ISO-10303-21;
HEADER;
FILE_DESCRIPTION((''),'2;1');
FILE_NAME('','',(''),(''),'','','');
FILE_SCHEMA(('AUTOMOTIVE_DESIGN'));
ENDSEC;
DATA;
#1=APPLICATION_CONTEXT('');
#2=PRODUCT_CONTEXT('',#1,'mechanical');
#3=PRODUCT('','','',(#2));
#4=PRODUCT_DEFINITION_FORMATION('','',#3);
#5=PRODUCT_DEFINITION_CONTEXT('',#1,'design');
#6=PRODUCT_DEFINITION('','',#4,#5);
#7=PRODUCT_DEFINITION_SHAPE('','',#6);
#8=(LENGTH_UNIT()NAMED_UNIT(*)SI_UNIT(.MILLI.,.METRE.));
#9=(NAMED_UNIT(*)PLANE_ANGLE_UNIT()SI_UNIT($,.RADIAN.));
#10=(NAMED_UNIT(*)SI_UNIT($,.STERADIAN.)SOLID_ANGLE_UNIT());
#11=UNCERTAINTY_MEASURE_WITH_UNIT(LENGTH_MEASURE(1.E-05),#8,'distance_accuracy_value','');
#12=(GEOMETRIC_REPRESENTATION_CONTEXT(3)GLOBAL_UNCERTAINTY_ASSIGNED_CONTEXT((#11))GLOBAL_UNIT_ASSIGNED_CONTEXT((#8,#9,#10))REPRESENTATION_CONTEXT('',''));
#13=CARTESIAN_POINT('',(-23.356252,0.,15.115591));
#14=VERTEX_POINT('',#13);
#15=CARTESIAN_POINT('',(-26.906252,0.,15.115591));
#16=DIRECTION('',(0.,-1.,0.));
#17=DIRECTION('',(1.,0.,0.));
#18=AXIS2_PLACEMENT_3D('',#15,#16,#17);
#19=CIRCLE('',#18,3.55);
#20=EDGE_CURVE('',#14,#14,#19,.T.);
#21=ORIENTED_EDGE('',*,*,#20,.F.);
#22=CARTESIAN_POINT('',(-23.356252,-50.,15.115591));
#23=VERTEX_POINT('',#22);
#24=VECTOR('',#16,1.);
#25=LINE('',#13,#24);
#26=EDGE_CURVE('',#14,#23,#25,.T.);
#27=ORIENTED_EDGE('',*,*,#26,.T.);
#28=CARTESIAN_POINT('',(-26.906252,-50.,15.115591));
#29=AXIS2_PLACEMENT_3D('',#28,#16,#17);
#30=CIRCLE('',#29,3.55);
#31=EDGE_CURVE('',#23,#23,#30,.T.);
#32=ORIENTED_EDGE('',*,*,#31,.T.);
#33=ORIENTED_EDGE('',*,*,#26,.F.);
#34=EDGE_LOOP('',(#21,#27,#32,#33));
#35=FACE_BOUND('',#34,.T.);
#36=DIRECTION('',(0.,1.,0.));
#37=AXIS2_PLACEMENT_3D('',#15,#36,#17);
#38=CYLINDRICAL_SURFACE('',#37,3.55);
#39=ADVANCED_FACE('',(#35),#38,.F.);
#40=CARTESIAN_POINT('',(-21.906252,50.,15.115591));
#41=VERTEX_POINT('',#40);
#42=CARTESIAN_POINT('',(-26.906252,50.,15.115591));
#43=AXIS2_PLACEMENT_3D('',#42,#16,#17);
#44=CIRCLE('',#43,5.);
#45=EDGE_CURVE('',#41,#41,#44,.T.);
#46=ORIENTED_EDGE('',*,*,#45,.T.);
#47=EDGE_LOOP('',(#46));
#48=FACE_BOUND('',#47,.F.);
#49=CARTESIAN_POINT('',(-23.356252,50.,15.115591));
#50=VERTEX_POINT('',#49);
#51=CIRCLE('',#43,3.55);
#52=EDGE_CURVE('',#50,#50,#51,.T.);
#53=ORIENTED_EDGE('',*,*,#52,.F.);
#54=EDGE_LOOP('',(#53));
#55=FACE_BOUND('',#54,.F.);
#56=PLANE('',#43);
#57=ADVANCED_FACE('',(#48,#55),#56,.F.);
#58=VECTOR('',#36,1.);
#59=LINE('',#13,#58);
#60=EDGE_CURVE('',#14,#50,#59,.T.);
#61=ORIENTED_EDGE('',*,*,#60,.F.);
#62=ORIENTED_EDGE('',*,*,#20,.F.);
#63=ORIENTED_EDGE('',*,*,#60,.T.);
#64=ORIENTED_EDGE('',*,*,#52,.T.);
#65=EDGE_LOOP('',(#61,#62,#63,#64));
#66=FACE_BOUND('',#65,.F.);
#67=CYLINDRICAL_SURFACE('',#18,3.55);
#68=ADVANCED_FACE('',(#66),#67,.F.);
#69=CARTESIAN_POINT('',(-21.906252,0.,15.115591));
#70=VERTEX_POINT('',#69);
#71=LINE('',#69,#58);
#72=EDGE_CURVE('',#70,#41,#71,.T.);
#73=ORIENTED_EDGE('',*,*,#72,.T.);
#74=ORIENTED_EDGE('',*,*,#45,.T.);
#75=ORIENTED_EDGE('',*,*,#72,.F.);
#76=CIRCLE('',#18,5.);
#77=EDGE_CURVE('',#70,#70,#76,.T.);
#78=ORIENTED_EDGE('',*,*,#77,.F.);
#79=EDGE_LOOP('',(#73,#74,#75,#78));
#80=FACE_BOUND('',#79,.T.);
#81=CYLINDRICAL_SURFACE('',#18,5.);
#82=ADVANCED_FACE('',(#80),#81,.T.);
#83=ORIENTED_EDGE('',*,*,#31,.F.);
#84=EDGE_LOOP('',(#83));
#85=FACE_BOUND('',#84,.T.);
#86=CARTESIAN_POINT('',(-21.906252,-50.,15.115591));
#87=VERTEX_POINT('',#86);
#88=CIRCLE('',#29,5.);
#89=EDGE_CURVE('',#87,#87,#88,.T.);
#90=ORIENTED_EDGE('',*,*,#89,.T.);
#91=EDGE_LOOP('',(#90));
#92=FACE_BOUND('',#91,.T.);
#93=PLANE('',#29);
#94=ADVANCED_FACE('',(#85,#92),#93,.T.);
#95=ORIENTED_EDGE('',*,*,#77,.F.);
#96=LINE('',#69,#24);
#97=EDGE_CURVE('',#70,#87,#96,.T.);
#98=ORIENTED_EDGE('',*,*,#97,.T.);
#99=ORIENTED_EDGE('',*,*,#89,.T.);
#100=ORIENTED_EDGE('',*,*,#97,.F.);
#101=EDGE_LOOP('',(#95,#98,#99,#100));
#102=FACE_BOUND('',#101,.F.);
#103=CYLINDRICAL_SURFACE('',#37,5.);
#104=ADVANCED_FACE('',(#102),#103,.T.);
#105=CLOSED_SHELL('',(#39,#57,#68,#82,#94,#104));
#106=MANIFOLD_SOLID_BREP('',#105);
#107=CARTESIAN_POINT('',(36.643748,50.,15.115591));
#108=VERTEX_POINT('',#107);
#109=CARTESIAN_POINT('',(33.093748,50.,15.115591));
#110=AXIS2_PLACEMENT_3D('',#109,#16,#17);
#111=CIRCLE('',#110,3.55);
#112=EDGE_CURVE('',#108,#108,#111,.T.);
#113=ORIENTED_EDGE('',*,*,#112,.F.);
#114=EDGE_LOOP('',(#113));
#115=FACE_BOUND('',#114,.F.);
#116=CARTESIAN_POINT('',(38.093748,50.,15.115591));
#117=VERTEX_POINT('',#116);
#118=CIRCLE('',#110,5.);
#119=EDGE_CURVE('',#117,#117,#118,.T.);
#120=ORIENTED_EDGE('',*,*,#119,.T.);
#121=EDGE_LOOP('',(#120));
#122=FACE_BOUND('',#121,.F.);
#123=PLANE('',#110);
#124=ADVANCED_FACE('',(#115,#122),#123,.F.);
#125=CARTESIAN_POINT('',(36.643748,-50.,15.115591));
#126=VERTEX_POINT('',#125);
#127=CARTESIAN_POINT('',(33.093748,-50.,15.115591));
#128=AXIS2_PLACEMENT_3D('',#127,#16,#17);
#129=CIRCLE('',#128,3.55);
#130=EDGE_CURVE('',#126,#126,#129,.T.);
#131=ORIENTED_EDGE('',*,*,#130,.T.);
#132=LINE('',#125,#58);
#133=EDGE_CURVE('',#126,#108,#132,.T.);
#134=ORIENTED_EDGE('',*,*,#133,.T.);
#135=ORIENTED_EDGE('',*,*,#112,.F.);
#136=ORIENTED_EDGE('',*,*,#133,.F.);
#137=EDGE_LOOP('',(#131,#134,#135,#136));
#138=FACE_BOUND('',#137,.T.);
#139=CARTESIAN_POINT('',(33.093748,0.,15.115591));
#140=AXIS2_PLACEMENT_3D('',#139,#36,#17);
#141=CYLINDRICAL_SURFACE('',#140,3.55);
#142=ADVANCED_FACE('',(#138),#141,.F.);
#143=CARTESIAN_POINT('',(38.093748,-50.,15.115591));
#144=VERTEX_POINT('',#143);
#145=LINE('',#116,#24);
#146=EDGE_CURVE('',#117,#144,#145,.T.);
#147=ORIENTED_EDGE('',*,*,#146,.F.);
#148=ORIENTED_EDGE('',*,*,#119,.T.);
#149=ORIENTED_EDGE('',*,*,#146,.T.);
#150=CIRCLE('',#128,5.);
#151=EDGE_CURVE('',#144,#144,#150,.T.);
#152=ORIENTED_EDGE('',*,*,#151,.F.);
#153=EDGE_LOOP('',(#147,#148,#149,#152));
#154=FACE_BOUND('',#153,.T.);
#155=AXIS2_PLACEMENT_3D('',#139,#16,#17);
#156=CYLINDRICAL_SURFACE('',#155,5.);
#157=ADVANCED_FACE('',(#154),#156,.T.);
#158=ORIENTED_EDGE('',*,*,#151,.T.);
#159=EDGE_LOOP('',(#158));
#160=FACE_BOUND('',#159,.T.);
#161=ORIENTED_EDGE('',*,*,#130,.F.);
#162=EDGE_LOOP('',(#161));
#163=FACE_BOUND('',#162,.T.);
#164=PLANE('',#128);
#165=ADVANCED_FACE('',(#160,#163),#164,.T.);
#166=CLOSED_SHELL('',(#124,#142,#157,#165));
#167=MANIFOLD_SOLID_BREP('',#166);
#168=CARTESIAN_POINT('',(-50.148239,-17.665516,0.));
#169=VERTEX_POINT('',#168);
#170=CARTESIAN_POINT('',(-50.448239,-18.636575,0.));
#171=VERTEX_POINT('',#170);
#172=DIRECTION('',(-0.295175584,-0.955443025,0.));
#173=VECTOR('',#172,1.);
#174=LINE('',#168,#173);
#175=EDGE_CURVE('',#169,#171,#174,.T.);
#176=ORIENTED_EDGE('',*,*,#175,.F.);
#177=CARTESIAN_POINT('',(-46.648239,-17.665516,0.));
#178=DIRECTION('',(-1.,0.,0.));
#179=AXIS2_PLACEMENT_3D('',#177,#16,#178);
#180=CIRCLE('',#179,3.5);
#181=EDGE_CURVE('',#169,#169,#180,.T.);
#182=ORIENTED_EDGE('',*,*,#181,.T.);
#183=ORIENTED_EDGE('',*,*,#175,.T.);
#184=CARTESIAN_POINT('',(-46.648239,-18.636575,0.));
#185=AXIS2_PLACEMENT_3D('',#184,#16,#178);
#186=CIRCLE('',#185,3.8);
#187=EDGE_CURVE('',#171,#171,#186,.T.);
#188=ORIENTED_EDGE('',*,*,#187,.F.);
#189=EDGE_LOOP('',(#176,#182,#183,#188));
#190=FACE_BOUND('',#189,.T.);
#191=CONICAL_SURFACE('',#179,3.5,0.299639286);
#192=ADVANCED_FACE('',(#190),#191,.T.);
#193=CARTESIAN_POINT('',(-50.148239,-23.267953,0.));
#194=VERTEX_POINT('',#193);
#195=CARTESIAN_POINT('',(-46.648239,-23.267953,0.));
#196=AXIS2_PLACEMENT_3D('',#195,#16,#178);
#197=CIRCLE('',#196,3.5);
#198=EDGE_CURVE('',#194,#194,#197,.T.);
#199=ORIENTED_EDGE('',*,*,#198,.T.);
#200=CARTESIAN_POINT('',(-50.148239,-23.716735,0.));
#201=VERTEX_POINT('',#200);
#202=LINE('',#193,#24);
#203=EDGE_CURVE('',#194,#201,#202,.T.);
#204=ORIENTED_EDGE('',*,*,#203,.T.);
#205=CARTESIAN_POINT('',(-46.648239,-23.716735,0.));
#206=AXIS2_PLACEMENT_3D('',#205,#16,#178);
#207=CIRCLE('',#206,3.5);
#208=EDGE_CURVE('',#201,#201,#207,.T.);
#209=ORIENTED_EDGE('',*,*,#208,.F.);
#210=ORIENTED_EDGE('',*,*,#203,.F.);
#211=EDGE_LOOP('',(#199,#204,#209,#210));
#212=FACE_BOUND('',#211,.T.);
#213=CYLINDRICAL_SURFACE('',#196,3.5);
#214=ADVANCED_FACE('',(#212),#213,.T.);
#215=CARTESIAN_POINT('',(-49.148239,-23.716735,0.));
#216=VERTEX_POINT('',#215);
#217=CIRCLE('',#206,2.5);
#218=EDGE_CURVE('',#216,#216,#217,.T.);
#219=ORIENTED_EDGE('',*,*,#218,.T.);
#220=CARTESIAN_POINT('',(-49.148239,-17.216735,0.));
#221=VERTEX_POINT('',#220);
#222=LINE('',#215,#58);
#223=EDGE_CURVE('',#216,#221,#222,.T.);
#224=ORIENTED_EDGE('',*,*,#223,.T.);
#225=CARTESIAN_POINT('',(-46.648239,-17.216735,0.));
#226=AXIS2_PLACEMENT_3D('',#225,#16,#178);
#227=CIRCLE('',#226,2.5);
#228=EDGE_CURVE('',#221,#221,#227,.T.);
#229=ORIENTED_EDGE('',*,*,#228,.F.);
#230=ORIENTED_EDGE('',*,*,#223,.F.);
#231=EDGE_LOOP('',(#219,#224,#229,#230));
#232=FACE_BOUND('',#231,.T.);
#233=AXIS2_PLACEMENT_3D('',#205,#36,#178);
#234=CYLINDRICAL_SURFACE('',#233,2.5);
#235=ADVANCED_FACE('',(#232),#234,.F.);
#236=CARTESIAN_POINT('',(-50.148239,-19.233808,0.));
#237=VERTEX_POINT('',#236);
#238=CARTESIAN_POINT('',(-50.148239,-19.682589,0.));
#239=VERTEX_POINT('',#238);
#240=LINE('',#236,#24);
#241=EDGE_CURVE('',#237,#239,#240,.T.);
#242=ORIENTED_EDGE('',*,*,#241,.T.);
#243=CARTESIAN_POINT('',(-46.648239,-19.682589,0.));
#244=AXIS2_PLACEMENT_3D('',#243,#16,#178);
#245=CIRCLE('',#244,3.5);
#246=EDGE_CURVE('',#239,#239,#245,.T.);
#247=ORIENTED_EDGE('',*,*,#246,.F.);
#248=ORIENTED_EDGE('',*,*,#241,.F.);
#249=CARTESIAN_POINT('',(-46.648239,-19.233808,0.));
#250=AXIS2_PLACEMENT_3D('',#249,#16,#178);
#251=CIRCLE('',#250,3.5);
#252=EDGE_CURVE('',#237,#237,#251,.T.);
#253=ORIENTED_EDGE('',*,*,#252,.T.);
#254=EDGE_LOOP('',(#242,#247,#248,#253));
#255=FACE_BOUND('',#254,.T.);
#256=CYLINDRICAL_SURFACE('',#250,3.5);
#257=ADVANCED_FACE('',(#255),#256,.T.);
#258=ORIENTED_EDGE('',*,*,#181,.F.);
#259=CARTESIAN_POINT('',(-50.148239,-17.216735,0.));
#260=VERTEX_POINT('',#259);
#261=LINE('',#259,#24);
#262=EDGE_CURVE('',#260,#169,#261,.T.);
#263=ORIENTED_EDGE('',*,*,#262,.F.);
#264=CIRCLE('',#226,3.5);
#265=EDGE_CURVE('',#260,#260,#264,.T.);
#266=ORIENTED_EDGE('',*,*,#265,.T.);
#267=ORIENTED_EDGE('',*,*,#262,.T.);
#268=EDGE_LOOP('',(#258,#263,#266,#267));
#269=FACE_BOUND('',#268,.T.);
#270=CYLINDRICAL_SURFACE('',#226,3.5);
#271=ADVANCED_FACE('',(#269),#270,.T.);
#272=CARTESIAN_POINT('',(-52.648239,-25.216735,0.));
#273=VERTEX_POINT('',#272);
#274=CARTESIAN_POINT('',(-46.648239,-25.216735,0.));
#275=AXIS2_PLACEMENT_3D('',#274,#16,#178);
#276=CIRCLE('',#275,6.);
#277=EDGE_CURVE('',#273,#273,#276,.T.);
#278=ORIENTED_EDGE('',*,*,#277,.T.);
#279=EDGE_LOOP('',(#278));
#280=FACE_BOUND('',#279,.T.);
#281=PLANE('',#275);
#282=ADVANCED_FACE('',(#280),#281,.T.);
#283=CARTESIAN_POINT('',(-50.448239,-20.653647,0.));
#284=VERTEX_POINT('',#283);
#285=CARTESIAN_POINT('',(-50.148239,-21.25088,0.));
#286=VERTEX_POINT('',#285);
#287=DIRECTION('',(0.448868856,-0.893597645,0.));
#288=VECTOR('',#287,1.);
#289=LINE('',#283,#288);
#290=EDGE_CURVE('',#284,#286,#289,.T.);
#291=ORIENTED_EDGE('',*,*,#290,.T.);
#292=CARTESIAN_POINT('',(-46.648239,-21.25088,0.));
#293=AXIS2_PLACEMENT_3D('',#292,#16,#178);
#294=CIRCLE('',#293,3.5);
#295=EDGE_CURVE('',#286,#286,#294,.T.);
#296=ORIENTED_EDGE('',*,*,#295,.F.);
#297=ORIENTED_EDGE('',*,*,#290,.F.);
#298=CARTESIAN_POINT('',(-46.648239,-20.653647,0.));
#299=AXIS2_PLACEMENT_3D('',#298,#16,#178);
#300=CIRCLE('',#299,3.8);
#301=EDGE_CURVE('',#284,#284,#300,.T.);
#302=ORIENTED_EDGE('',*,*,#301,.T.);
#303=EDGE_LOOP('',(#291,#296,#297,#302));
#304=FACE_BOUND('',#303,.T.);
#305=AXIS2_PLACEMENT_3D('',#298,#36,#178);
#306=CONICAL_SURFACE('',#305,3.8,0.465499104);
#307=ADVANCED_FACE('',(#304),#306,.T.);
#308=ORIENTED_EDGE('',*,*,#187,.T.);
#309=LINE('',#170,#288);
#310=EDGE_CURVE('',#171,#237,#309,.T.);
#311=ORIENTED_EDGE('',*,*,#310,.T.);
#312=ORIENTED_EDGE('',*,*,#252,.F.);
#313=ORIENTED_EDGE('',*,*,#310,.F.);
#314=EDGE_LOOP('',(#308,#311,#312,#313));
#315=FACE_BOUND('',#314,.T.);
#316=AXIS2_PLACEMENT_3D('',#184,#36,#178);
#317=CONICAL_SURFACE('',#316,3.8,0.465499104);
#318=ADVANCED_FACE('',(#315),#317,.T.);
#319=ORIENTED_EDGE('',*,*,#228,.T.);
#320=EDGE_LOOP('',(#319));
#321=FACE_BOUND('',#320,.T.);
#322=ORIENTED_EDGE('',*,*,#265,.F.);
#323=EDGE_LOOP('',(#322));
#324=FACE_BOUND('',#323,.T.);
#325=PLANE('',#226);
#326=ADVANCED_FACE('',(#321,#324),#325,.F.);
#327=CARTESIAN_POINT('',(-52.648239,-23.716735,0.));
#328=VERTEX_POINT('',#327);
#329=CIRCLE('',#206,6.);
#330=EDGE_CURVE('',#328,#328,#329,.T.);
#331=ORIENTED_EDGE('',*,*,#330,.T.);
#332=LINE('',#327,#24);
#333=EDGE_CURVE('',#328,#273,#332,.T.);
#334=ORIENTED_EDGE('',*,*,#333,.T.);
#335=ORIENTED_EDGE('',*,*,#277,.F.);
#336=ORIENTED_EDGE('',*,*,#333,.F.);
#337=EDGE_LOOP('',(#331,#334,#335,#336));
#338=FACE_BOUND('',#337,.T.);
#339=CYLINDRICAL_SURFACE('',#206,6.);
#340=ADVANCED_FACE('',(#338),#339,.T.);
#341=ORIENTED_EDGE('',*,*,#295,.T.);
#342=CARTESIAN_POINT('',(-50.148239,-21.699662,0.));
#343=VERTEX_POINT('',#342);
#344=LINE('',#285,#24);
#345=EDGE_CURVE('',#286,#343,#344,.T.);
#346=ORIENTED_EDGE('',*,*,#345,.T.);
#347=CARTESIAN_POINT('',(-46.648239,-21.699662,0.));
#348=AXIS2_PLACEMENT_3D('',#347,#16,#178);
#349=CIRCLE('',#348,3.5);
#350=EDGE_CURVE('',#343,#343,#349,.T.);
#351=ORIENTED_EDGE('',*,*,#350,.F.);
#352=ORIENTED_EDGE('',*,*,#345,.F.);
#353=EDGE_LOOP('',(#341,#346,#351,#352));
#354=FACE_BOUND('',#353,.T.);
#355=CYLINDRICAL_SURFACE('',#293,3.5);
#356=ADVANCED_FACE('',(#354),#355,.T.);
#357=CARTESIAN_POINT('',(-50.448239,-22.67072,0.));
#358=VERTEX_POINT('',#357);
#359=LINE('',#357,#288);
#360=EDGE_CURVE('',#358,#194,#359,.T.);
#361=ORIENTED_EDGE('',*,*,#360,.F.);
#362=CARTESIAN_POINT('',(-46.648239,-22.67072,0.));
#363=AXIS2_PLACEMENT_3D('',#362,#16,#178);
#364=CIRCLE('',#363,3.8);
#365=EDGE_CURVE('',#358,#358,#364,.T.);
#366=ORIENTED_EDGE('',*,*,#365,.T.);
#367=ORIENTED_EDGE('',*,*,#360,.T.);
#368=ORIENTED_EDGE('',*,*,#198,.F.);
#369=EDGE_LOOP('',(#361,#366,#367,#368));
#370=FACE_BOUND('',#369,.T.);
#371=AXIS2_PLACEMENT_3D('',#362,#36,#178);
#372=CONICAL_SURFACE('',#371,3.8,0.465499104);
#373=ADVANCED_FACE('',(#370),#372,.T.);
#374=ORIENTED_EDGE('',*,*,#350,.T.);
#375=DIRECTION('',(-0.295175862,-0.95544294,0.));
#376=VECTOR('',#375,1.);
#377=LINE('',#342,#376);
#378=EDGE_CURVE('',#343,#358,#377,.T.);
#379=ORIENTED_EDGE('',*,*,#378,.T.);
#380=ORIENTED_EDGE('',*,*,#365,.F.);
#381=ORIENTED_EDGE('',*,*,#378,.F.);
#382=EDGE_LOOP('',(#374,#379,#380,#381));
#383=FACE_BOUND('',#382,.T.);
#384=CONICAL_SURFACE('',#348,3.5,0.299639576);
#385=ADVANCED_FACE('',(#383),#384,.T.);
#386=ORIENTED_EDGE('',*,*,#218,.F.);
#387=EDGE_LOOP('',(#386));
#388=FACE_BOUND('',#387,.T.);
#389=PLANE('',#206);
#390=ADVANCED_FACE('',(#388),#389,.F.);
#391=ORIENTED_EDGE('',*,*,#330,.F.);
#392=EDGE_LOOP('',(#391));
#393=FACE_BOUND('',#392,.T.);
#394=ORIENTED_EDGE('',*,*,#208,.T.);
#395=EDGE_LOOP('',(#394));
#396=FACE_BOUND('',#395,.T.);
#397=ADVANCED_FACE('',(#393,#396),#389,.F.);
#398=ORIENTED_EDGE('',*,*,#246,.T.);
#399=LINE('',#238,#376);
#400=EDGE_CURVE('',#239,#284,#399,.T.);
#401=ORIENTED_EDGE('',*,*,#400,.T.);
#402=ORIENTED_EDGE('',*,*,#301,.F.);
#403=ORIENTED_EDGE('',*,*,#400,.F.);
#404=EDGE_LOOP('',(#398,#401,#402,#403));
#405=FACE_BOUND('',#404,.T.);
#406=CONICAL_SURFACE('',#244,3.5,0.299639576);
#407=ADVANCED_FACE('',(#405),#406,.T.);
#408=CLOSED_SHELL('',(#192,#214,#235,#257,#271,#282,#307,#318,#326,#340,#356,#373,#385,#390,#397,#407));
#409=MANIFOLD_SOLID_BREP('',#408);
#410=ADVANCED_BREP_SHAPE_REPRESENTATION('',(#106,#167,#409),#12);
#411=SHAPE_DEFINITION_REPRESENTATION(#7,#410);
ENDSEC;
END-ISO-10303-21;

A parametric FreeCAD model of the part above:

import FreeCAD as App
import Part
import Sketcher

V = App.Vector


def add_polygon(sketch, points):
    """Adds a closed chain of lines whose ends are joined by coincident constraints."""
    first, n = sketch.GeometryCount, len(points)
    for a, b in zip(points, points[1:] + points[:1]):
        sketch.addGeometry(Part.LineSegment(App.Vector(*a, 0), App.Vector(*b, 0)), False)
    for i in range(n):
        sketch.addConstraint(Sketcher.Constraint("Coincident", first + i, 2, first + (i + 1) % n, 1))

doc = App.newDocument("Part")
body = doc.addObject("PartDesign::Body", "Body")
body.AllowCompound = True

# Sketch on XZ plane
sketch1 = body.newObject("Sketcher::SketchObject", "Sketch")
sketch1.AttachmentSupport = (doc.getObject("XZ_Plane"), [""])
sketch1.MapMode = "FlatFace"
sketch1.addGeometry([
    Part.Circle(V(-26.9, 15.1, 0), V(0, 0, 1), 5),
    Part.Circle(V(-26.9, 15.1, 0), V(0, 0, 1), 3.5),
    Part.Circle(V(33.1, 15.1, 0), V(0, 0, 1), 5),
    Part.Circle(V(33.1, 15.1, 0), V(0, 0, 1), 3.5),
], False)
sketch1.addConstraint([
    Sketcher.Constraint("Coincident", 1, 3, 0, 3),
    Sketcher.Constraint("Coincident", 3, 3, 2, 3),
    Sketcher.Constraint("Equal", 0, 2),
    Sketcher.Constraint("Equal", 1, 3),
    Sketcher.Constraint("Horizontal", 1, 3, 2, 3),
    Sketcher.Constraint("Diameter", 0, 10.0),
    Sketcher.Constraint("Diameter", 1, 7.1),
    Sketcher.Constraint("DistanceX", 0, 3, 2, 3, 60.0),
    Sketcher.Constraint("DistanceX", 0, 3, -1, 1, 26.906252),
    Sketcher.Constraint("DistanceY", -1, 1, 0, 3, 15.115591),
])
pad1 = body.newObject("PartDesign::Pad", "Pad")
pad1.Profile = sketch1
pad1.Length = 100
pad1.Midplane = True
body2 = doc.addObject("PartDesign::Body", "Body001")

# Sketch on XY plane
sketch2 = body2.newObject("Sketcher::SketchObject", "Sketch001")
sketch2.AttachmentSupport = (doc.getObject("XY_Plane001"), [""])
sketch2.MapMode = "FlatFace"
add_polygon(sketch2, [(-52.65, -23.72), (-52.65, -25.22), (-46.65, -25.22), (-46.65, -23.72), (-49.15, -23.72), (-49.15, -17.22), (-50.15, -17.22), (-50.15, -17.67), (-50.45, -18.64), (-50.15, -19.23), (-50.15, -19.68), (-50.45, -20.65), (-50.15, -21.25), (-50.15, -21.7), (-50.45, -22.67), (-50.15, -23.27), (-50.15, -23.72)])  # lines 0-16
sketch2.addGeometry(Part.LineSegment(V(-46.65, -17.22, 0), V(-46.65, -25.22, 0)), True)  # axis
sketch2.addConstraint([
    Sketcher.Constraint("Vertical", 0),
    Sketcher.Constraint("Horizontal", 1),
    Sketcher.Constraint("Vertical", 2),
    Sketcher.Constraint("Horizontal", 3),
    Sketcher.Constraint("Vertical", 4),
    Sketcher.Constraint("Horizontal", 5),
    Sketcher.Constraint("Vertical", 6),
    Sketcher.Constraint("Vertical", 9),
    Sketcher.Constraint("Vertical", 12),
    Sketcher.Constraint("Vertical", 15),
    Sketcher.Constraint("Horizontal", 16),
    Sketcher.Constraint("Vertical", 17),
    Sketcher.Constraint("Coincident", 17, 2, 1, 2),
    Sketcher.Constraint("Parallel", 7, 10),
    Sketcher.Constraint("Parallel", 8, 11),
    Sketcher.Constraint("Parallel", 10, 13),
    Sketcher.Constraint("Parallel", 11, 14),
    Sketcher.Constraint("Horizontal", 3, 2, 15, 2),
    Sketcher.Constraint("Horizontal", 5, 2, 17, 1),
    Sketcher.Constraint("Vertical", 6, 2, 8, 2),
    Sketcher.Constraint("Vertical", 7, 2, 10, 2),
    Sketcher.Constraint("Vertical", 9, 2, 11, 2),
    Sketcher.Constraint("Vertical", 10, 2, 13, 2),
    Sketcher.Constraint("Vertical", 12, 2, 14, 2),
    Sketcher.Constraint("Equal", 3, 16),
    Sketcher.Constraint("Equal", 6, 9),
    Sketcher.Constraint("Equal", 9, 12),
    Sketcher.Constraint("Equal", 12, 15),
    Sketcher.Constraint("DistanceX", 1, 1, 1, 2, 6.0),
    Sketcher.Constraint("DistanceX", 5, 2, 5, 1, 1.0),
    Sketcher.Constraint("DistanceY", 17, 2, 17, 1, 8.0),
    Sketcher.Constraint("DistanceY", 0, 2, 0, 1, 1.5),
    Sketcher.Constraint("DistanceX", 7, 2, 6, 2, 0.3),
    Sketcher.Constraint("DistanceY", 6, 2, 6, 1, 0.448781),
    Sketcher.Constraint("DistanceX", 0, 2, -1, 1, 52.648239),
    Sketcher.Constraint("DistanceY", 8, 2, -1, 1, 19.233808),
    Sketcher.Constraint("DistanceY", 13, 2, -1, 1, 22.67072),
])
revolution = body2.newObject("PartDesign::Revolution", "Revolution")
revolution.Profile = sketch2
revolution.ReferenceAxis = (sketch2, ["Axis0"])
revolution.Angle = 360

doc.recompute()
